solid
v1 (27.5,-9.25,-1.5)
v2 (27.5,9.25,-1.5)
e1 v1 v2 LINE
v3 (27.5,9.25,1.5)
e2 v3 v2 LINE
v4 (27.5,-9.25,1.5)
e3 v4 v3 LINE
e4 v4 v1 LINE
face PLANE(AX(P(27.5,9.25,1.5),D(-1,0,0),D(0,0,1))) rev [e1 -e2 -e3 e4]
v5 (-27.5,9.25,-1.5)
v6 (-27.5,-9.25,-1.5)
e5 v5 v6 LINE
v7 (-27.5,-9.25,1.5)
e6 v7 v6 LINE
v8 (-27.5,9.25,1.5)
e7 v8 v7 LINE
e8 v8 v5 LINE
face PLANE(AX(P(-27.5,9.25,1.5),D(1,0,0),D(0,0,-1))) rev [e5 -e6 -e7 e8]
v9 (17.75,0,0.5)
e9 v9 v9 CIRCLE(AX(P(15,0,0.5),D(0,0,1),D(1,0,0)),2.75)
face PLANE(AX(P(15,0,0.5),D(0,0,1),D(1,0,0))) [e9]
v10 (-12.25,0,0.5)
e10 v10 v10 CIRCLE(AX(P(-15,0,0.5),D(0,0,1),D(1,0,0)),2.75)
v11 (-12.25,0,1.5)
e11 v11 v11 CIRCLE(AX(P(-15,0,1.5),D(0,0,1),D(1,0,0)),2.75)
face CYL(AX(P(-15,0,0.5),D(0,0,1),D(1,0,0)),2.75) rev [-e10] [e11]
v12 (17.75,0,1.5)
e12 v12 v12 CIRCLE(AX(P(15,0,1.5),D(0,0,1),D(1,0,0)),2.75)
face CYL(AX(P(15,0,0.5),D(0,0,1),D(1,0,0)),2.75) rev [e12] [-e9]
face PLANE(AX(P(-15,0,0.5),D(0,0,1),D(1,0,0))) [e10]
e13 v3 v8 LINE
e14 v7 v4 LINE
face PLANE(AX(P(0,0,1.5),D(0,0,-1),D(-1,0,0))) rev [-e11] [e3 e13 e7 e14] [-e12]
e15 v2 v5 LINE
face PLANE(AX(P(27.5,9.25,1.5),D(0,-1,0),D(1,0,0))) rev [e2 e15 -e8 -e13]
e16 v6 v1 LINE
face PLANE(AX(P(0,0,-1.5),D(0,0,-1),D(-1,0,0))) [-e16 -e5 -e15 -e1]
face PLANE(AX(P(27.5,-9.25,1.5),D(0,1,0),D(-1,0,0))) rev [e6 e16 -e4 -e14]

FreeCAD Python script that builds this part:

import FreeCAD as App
import Part
import Sketcher
Q = App.Units.Quantity


def add_polygon(sketch, points):
    """Adds a closed chain of lines whose ends are joined by coincident constraints."""
    first, n = sketch.GeometryCount, len(points)
    for a, b in zip(points, points[1:] + points[:1]):
        sketch.addGeometry(Part.LineSegment(App.Vector(*a, 0), App.Vector(*b, 0)), False)
    for i in range(n):
        sketch.addConstraint(Sketcher.Constraint("Coincident", first + i, 2, first + (i + 1) % n, 1))

doc = App.newDocument("Part")
params = doc.addObject("Spreadsheet::Sheet", "Params")
for row, (alias, value) in enumerate([
    ("sketch1_width", "55 mm"),
    ("sketch1_height", "18.5 mm"),
    ("pad1_length", "3 mm"),
    ("sketch2_diameter", "5.5 mm"),
    ("pocket1_length", "1 mm"),
], start=1):
    params.set(f"A{row}", alias)
    params.set(f"B{row}", "=" + value)
    params.setAlias(f"B{row}", alias)

body = doc.addObject("PartDesign::Body", "Body")

# Sketch on XY plane
sketch1 = body.newObject("Sketcher::SketchObject", "Sketch")
sketch1.AttachmentSupport = (doc.getObject("XY_Plane"), [""])
sketch1.MapMode = "FlatFace"
add_polygon(sketch1, [(-28, 9), (-28, -9), (28, -9), (28, 9)])  # lines 0-3
sketch1.addConstraint(Sketcher.Constraint("Vertical", 0))
sketch1.addConstraint(Sketcher.Constraint("Horizontal", 1))
sketch1.addConstraint(Sketcher.Constraint("Vertical", 2))
sketch1.addConstraint(Sketcher.Constraint("Horizontal", 3))
sketch1.addConstraint(Sketcher.Constraint("Symmetric", 0, 2, 2, 2, -1, 1))
sketch1.addConstraint(Sketcher.Constraint("DistanceX", 1, 1, 1, 2, Q("55 mm")))
sketch1.addConstraint(Sketcher.Constraint("DistanceY", 0, 2, 0, 1, Q("18.5 mm")))
sketch1.setExpression("Constraints[9]", "Params.sketch1_width")
sketch1.setExpression("Constraints[10]", "Params.sketch1_height")
pad1 = body.newObject("PartDesign::Pad", "Pad")
pad1.Profile = sketch1
pad1.setExpression("Length", "Params.pad1_length")
pad1.Midplane = True

# Sketch on XY plane
sketch2 = body.newObject("Sketcher::SketchObject", "Sketch001")
sketch2.AttachmentSupport = (doc.getObject("XY_Plane"), [""])
sketch2.MapMode = "FlatFace"
sketch2.AttachmentOffset = App.Placement(App.Vector(0, 0, 1.5), App.Rotation())
sketch2.addGeometry(Part.Circle(App.Vector(-15, 0, 0), App.Vector(0, 0, 1), 2.8), False)
sketch2.addGeometry(Part.Circle(App.Vector(15, 0, 0), App.Vector(0, 0, 1), 2.8), False)
sketch2.addConstraint(Sketcher.Constraint("Equal", 0, 1))
sketch2.addConstraint(Sketcher.Constraint("Symmetric", 0, 3, 1, 3, -1, 1))
sketch2.addConstraint(Sketcher.Constraint("PointOnObject", 0, 3, -1))
sketch2.addConstraint(Sketcher.Constraint("Diameter", 0, Q("5.5 mm")))
sketch2.addConstraint(Sketcher.Constraint("DistanceX", 0, 3, -1, 1, Q("15 mm")))
sketch2.setExpression("Constraints[3]", "Params.sketch2_diameter")
pocket1 = body.newObject("PartDesign::Pocket", "Pocket")
pocket1.Profile = sketch2
pocket1.setExpression("Length", "Params.pocket1_length")

doc.recompute()
